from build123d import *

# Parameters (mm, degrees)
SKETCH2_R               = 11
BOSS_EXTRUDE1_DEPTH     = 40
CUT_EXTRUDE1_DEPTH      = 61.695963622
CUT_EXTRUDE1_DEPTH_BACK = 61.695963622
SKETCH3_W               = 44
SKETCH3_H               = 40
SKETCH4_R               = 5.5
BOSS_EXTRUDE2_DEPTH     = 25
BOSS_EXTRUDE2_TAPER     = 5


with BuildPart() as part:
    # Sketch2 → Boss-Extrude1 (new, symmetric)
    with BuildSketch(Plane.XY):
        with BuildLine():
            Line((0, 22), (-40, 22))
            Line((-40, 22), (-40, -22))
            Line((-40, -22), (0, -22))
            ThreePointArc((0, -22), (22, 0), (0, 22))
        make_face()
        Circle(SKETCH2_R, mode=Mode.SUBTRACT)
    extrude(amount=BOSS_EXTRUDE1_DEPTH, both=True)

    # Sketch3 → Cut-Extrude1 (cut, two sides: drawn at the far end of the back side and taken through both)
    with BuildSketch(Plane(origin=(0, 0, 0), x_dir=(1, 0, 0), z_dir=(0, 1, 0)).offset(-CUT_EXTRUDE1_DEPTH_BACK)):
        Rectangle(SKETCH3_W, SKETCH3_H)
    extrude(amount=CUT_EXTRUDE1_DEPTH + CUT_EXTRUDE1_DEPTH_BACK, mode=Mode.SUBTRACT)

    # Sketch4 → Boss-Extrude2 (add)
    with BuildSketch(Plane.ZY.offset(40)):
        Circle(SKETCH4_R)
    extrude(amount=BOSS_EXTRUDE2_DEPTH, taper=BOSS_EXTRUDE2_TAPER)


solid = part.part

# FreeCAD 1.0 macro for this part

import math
import FreeCAD as App
import Part
import Sketcher

V = App.Vector
Q = App.Units.Quantity


def add_polygon(sketch, points):
    """Adds a closed chain of lines whose ends are joined by coincident constraints."""
    first, n = sketch.GeometryCount, len(points)
    for a, b in zip(points, points[1:] + points[:1]):
        sketch.addGeometry(Part.LineSegment(App.Vector(*a, 0), App.Vector(*b, 0)), False)
    for i in range(n):
        sketch.addConstraint(Sketcher.Constraint("Coincident", first + i, 2, first + (i + 1) % n, 1))

doc = App.newDocument("Part")
body = doc.addObject("PartDesign::Body", "Body")

# Sketch on XY plane
sketch1 = doc.addObject("Sketcher::SketchObject", "Sketch")
body.addObject(sketch1)
sketch1.AttachmentSupport = (doc.XY_Plane, [""])
sketch1.MapMode = "FlatFace"
sketch1.addGeometry([
    Part.LineSegment(V(0, 22, 0), V(-40, 22, 0)),  # 0
    Part.LineSegment(V(-40, 22, 0), V(-40, -22, 0)),  # 1
    Part.LineSegment(V(-40, -22, 0), V(0, -22, 0)),  # 2
    Part.ArcOfCircle(Part.Circle(V(0, 0, 0), V(0, 0, 1), 22), math.radians(-90), math.radians(90)),  # 3
    Part.Circle(V(0, 0, 0), V(0, 0, 1), 11),  # 4
], False)
sketch1.addConstraint([
    Sketcher.Constraint("Coincident", 0, 2, 1, 1),
    Sketcher.Constraint("Coincident", 1, 2, 2, 1),
    Sketcher.Constraint("Tangent", 2, 2, 3, 1),
    Sketcher.Constraint("Tangent", 3, 2, 0, 1),
    Sketcher.Constraint("Horizontal", 0),
    Sketcher.Constraint("Vertical", 1),
    Sketcher.Constraint("Horizontal", 2),
    Sketcher.Constraint("Coincident", 3, 3, -1, 1),
    Sketcher.Constraint("Coincident", 4, 3, -1, 1),
    Sketcher.Constraint("Diameter", 4, Q("22 mm")),
    Sketcher.Constraint("Radius", 3, Q("22 mm")),
    Sketcher.Constraint("DistanceX", 0, 2, 0, 1, Q("40 mm")),
])
pad1 = doc.addObject("PartDesign::Pad", "Pad")
body.addObject(pad1)
pad1.Profile = sketch1
pad1.Length = 80
pad1.Midplane = True

# Sketch on XZ plane
sketch2 = doc.addObject("Sketcher::SketchObject", "Sketch001")
body.addObject(sketch2)
sketch2.AttachmentSupport = (doc.XZ_Plane, [""])
sketch2.MapMode = "FlatFace"
add_polygon(sketch2, [(-22, -20), (-22, 20), (22, 20), (22, -20)])  # lines 0-3
sketch2.addConstraint([
    Sketcher.Constraint("Vertical", 0),
    Sketcher.Constraint("Horizontal", 1),
    Sketcher.Constraint("Vertical", 2),
    Sketcher.Constraint("Horizontal", 3),
    Sketcher.Constraint("Symmetric", 0, 2, 2, 2, -1, 1),
    Sketcher.Constraint("DistanceX", 1, 1, 1, 2, Q("44 mm")),
    Sketcher.Constraint("DistanceY", 0, 1, 0, 2, Q("40 mm")),
])
pocket1 = doc.addObject("PartDesign::Pocket", "Pocket")
body.addObject(pocket1)
pocket1.Profile = sketch2
pocket1.Type = "ThroughAll"
pocket1.Midplane = True

# Sketch on YZ plane
sketch3 = doc.addObject("Sketcher::SketchObject", "Sketch002")
body.addObject(sketch3)
sketch3.AttachmentSupport = (doc.YZ_Plane, [""])
sketch3.MapMode = "FlatFace"
sketch3.AttachmentOffset = App.Placement(V(0, 0, -40), App.Rotation())
sketch3.addGeometry(Part.Circle(V(0, 0, 0), V(0, 0, 1), 6), False)
sketch3.addConstraint([
    Sketcher.Constraint("Coincident", 0, 3, -1, 1),
    Sketcher.Constraint("Diameter", 0, Q("11 mm")),
])
pad2 = doc.addObject("PartDesign::Pad", "Pad001")
body.addObject(pad2)
pad2.Profile = sketch3
pad2.Length = 25
pad2.Reversed = True
pad2.TaperAngle = -5

doc.recompute()
